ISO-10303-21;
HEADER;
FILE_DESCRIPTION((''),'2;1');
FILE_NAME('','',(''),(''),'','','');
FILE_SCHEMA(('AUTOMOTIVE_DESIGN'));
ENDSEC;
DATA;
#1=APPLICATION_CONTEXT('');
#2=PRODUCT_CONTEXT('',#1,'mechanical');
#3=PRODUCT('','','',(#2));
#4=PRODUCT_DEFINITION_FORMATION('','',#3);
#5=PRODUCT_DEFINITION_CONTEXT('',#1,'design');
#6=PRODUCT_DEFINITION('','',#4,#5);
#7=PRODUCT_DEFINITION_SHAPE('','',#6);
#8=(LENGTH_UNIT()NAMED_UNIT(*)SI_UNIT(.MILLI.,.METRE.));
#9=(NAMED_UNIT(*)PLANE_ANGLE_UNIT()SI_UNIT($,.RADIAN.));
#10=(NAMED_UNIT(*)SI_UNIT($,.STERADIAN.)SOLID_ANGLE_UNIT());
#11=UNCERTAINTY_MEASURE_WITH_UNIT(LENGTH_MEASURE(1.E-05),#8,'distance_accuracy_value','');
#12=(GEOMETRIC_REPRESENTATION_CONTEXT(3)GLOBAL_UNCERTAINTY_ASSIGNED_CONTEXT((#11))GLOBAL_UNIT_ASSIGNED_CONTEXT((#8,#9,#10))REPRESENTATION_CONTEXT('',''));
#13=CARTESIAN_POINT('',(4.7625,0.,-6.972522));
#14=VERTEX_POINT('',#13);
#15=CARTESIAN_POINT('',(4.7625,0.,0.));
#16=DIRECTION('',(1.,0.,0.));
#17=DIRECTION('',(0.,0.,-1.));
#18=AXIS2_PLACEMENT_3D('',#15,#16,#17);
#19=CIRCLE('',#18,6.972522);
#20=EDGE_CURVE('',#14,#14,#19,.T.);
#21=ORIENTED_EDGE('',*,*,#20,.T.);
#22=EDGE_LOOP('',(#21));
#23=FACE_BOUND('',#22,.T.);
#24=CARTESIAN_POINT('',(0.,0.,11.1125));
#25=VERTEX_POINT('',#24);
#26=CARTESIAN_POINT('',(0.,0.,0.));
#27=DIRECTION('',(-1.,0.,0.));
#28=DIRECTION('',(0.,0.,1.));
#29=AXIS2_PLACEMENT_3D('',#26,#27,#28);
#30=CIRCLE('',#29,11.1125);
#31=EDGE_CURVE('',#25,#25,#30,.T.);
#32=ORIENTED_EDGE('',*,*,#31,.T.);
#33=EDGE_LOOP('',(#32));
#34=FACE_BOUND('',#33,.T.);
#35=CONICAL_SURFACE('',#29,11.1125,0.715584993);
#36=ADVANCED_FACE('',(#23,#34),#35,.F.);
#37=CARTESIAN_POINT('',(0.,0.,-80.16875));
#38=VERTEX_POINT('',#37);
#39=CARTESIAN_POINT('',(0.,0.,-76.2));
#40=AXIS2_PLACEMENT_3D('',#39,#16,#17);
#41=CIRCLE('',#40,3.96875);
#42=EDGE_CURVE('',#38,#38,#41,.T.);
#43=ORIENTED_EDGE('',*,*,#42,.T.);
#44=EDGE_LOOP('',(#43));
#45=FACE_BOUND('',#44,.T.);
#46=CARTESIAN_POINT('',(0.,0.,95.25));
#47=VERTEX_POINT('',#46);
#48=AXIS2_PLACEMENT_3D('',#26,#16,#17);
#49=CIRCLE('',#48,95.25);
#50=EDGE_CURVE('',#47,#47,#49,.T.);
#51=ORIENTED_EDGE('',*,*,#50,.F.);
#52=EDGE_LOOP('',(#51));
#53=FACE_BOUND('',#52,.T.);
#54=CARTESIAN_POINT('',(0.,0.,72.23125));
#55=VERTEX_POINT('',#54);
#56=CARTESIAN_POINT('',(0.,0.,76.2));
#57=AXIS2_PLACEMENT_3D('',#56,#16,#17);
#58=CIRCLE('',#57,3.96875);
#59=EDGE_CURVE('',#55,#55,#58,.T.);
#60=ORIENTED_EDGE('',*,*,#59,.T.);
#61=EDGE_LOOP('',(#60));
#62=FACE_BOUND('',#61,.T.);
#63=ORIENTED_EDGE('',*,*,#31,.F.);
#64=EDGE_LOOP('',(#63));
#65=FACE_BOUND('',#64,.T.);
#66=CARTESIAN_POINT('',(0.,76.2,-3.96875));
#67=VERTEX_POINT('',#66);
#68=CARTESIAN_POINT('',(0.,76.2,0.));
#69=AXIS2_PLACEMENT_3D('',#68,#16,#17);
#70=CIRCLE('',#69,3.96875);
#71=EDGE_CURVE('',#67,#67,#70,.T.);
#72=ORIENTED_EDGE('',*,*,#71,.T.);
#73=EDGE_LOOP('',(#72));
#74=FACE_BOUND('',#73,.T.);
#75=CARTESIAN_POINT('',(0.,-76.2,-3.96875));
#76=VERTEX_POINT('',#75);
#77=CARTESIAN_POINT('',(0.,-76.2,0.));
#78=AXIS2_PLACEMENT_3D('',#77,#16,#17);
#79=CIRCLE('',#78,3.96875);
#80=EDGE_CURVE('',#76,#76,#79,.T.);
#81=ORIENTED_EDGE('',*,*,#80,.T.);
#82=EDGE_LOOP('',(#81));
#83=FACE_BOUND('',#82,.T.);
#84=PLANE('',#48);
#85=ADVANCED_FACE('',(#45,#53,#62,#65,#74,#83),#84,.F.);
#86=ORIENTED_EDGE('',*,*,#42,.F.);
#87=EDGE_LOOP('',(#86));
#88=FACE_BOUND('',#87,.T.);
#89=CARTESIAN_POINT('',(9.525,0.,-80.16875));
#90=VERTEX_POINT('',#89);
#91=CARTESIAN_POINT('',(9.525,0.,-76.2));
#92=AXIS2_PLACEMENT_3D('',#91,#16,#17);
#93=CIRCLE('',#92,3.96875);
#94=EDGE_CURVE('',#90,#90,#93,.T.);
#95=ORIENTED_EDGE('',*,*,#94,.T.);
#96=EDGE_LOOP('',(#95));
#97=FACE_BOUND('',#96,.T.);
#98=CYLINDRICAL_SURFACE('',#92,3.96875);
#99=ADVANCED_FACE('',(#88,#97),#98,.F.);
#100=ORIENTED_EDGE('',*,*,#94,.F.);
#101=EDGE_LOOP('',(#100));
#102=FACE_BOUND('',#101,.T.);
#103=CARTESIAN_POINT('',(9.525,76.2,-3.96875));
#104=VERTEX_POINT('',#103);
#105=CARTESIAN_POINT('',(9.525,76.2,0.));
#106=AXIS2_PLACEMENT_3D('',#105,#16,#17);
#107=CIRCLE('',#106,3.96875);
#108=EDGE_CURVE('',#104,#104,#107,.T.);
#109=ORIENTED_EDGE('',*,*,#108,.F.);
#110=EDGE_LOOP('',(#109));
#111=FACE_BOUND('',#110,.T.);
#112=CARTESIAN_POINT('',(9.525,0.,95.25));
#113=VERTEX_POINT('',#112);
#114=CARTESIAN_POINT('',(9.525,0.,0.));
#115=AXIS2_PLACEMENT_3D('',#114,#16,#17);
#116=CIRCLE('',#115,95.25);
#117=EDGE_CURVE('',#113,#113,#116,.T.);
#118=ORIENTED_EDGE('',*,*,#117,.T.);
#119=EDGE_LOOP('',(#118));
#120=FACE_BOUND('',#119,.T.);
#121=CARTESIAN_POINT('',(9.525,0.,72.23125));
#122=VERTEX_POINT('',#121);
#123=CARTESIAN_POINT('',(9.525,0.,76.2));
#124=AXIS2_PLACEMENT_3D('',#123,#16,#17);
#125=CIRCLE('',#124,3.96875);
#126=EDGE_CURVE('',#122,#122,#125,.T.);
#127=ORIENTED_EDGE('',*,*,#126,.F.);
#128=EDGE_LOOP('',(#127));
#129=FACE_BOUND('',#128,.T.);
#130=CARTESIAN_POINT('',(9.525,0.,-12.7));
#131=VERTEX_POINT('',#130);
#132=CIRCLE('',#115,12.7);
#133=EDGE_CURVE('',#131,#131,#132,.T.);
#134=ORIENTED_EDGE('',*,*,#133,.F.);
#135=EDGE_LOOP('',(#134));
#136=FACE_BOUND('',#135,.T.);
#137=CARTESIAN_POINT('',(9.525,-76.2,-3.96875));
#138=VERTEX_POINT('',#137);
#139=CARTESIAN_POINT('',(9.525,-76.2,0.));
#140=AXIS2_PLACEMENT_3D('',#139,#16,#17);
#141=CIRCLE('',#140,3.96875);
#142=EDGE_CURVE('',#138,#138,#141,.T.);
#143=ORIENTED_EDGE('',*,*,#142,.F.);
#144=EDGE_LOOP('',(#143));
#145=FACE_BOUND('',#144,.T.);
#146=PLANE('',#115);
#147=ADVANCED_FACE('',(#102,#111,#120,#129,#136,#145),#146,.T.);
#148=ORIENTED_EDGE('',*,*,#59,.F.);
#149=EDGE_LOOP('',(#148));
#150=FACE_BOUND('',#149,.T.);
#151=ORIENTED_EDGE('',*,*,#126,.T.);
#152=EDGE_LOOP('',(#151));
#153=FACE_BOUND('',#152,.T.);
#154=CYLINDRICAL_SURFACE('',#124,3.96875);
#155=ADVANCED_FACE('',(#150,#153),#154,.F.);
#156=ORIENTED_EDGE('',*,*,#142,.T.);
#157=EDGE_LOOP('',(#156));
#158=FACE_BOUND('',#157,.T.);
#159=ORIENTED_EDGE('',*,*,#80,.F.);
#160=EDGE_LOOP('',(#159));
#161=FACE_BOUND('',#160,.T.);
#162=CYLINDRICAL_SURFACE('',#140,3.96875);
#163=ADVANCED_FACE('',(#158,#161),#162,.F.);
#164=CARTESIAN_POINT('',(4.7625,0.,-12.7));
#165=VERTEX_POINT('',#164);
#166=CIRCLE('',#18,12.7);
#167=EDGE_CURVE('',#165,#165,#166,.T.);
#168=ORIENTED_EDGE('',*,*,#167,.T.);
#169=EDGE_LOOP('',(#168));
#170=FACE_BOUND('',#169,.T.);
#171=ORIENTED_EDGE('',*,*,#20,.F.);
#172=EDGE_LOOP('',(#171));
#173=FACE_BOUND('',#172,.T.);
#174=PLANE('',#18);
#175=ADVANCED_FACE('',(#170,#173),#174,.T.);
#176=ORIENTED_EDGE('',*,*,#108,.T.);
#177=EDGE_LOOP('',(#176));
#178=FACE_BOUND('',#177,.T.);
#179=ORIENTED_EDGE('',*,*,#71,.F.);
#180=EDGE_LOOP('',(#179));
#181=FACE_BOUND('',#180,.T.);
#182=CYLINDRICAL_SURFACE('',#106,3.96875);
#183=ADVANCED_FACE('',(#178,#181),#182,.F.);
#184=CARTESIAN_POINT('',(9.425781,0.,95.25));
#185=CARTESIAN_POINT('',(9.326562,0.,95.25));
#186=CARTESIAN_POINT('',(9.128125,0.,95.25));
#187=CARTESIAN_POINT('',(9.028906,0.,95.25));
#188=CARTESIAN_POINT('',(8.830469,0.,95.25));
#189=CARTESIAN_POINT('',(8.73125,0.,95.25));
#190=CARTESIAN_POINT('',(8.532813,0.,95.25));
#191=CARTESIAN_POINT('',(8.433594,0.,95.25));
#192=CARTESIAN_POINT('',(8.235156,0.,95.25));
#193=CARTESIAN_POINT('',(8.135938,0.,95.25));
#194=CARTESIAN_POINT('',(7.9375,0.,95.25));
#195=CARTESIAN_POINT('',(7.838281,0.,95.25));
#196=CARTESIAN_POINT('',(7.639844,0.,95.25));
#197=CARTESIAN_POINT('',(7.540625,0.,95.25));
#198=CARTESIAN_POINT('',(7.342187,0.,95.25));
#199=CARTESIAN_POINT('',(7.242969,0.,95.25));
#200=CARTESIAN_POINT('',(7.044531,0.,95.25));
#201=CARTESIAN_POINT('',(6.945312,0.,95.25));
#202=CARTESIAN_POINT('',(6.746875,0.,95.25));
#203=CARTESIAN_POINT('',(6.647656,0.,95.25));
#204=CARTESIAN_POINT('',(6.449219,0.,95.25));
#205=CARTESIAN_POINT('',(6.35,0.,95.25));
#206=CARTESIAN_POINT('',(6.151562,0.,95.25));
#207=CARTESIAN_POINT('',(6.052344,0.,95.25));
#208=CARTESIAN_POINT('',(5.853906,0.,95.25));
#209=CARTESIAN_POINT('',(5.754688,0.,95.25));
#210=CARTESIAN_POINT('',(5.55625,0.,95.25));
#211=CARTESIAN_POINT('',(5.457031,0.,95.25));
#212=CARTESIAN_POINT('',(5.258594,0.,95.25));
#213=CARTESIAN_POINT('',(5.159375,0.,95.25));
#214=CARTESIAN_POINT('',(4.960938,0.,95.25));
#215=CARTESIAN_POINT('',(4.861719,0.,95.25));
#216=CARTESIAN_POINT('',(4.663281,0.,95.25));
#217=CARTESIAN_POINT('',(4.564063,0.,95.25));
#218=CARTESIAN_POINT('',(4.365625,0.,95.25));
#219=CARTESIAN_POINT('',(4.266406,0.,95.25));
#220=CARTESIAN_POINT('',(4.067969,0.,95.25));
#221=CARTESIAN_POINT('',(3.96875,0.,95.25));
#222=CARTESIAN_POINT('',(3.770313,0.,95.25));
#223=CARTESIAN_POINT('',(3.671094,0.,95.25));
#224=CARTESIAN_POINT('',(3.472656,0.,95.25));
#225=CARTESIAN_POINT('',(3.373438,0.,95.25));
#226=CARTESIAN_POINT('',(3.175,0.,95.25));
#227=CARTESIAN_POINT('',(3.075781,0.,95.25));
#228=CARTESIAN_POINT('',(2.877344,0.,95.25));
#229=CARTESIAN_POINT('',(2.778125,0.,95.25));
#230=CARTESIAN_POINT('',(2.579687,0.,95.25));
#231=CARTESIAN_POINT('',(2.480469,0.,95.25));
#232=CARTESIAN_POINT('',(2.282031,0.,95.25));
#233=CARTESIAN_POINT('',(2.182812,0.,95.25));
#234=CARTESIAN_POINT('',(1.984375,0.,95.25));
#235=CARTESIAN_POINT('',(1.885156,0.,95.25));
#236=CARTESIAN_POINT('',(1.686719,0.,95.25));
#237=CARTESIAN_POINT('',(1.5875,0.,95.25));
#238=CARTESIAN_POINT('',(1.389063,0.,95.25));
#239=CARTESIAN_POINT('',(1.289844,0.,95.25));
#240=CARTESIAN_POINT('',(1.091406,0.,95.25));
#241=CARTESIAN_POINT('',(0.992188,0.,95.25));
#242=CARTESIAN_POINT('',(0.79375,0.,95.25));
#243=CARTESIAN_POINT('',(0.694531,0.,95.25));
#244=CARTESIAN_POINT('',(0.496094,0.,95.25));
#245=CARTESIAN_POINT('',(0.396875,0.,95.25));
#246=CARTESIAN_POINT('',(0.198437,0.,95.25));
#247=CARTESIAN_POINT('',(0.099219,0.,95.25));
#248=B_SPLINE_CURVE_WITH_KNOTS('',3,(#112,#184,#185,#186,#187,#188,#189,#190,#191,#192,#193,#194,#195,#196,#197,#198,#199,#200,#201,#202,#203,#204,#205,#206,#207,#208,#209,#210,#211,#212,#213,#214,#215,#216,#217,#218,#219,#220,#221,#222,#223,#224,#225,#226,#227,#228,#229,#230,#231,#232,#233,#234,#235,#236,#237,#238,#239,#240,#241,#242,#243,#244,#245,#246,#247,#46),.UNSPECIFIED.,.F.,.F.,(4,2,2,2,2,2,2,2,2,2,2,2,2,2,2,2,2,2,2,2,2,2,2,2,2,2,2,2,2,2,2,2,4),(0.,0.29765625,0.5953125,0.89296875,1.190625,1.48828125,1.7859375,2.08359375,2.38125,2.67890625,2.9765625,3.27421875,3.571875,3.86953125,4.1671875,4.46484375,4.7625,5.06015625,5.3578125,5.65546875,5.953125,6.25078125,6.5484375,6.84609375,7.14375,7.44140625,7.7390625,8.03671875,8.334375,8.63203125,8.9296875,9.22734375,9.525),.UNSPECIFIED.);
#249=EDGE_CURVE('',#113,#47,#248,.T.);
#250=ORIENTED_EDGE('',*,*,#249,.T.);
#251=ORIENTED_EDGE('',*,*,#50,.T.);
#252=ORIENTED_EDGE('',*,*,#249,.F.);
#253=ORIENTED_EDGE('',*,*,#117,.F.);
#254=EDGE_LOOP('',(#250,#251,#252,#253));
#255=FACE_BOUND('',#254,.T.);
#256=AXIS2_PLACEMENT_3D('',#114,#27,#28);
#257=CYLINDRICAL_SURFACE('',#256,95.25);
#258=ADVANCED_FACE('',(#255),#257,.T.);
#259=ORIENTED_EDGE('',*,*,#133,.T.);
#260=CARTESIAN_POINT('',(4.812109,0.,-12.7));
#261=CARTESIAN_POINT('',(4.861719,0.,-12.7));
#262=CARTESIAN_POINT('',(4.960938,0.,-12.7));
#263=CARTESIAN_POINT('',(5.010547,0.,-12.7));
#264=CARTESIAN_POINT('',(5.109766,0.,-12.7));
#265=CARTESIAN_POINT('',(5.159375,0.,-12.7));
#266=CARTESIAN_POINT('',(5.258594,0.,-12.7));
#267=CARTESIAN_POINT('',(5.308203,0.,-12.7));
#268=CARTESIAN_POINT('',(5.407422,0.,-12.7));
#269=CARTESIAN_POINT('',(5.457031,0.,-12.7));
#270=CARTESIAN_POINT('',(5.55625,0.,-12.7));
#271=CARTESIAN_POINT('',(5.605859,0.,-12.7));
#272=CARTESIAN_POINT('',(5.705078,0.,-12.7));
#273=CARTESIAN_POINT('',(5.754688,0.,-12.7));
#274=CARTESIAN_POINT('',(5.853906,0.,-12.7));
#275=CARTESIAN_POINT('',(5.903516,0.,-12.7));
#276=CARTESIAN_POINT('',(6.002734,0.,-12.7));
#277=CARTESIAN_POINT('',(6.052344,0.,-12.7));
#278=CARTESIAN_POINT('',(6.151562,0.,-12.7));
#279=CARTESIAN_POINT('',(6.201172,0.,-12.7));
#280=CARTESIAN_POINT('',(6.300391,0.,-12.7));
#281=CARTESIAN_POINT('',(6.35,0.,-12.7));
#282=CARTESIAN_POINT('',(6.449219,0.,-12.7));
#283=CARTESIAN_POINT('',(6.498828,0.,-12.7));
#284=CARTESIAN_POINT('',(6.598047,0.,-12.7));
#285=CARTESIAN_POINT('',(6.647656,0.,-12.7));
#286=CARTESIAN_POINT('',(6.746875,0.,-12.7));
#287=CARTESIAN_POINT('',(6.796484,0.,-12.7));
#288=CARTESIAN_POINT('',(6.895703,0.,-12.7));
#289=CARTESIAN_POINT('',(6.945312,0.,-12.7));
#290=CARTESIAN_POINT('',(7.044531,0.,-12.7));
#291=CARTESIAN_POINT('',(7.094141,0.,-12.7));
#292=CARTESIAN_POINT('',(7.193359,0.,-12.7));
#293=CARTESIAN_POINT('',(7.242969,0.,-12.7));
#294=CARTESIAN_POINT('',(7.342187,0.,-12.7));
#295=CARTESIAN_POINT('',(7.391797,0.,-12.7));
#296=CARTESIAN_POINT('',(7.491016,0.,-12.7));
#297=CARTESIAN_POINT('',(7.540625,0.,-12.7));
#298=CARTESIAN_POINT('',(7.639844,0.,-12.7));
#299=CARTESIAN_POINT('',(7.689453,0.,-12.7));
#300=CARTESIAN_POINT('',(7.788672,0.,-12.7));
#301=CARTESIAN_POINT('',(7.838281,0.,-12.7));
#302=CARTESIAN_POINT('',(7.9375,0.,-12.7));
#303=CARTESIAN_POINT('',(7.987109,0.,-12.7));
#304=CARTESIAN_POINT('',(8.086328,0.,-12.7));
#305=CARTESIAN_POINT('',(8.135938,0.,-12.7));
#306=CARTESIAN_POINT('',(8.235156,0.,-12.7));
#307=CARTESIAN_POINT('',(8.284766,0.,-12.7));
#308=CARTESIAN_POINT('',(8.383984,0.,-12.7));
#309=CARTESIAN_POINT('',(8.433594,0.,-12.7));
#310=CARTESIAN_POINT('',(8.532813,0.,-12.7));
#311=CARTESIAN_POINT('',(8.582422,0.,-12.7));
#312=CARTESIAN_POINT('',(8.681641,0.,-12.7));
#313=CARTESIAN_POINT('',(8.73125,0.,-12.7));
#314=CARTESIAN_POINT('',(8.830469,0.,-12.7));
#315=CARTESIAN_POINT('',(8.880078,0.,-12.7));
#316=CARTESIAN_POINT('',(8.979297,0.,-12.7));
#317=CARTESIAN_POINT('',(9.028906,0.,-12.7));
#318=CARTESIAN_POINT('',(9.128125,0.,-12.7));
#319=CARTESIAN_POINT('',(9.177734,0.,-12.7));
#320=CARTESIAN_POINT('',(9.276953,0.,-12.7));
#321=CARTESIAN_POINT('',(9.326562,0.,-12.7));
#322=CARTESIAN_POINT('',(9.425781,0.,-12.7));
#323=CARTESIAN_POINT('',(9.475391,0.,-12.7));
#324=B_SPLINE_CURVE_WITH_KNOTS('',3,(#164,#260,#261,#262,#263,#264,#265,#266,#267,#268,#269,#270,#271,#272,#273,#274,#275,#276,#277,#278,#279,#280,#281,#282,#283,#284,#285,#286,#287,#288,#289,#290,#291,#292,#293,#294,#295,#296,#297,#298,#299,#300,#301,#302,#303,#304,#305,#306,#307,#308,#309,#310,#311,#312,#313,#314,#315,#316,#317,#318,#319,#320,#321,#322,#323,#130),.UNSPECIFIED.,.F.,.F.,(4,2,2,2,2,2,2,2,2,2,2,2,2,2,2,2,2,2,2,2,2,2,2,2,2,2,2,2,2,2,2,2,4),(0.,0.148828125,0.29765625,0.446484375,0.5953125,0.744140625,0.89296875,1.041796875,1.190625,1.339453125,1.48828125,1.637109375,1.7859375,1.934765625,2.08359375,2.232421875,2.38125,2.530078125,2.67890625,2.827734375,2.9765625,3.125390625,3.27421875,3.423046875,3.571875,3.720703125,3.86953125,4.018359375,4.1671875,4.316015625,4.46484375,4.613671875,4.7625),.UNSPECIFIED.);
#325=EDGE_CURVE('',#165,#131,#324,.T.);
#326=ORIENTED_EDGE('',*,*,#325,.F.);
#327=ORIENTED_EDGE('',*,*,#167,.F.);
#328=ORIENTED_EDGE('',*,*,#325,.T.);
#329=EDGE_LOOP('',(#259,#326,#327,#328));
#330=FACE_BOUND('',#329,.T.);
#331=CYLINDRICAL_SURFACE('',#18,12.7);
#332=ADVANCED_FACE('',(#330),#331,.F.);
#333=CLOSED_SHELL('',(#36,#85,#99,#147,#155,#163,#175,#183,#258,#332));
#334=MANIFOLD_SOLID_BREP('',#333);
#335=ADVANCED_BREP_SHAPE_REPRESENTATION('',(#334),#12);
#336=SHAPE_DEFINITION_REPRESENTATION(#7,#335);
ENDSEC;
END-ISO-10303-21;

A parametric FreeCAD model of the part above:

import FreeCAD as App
import Part
import Sketcher
from FreeCAD import Vector
Q = App.Units.Quantity

doc = App.newDocument("Part")
body = doc.addObject("PartDesign::Body", "Body")

sketch1 = body.newObject("Sketcher::SketchObject", "Sketch")
sketch1.AttachmentSupport = (doc.getObject("YZ_Plane"), [""])
sketch1.MapMode = "FlatFace"
sketch1.addGeometry(Part.Circle(Vector(0, 0, 0), Vector(0, 0, 1), 95), False)
sketch1.addConstraint(Sketcher.Constraint("Coincident", 0, 3, -1, 1))
sketch1.addConstraint(Sketcher.Constraint("Diameter", 0, Q("7.5 in")))
pad1 = body.newObject("PartDesign::Pad", "Pad")
pad1.Profile = sketch1
pad1.Length = Q("0.375 in")

sketch2 = body.newObject("Sketcher::SketchObject", "Sketch001")
sketch2.AttachmentSupport = (doc.getObject("YZ_Plane"), [""])
sketch2.MapMode = "FlatFace"
sketch2.AttachmentOffset = App.Placement(Vector(0, 0, 0.375 * 25.4), App.Rotation())
sketch2.addGeometry(Part.Circle(Vector(0, 0, 0), Vector(0, 0, 1), 13), False)
sketch2.addConstraint(Sketcher.Constraint("Coincident", 0, 3, -1, 1))
sketch2.addConstraint(Sketcher.Constraint("Diameter", 0, Q("1 in")))
pocket1 = body.newObject("PartDesign::Pocket", "Pocket")
pocket1.Profile = sketch2
pocket1.Length = Q("0.1875 in")

sketch3 = body.newObject("Sketcher::SketchObject", "Sketch002")
sketch3.AttachmentSupport = (doc.getObject("XZ_Plane"), [""])
sketch3.MapMode = "FlatFace"
sketch3.addGeometry(Part.LineSegment(Vector(9.5, 0, 0), Vector(0, 0, 0)), False)
sketch3.addGeometry(Part.LineSegment(Vector(0, 0, 0), Vector(0, 11.1, 0)), False)
sketch3.addGeometry(Part.LineSegment(Vector(0, 11.1, 0), Vector(5, 6.7, 0)), False)
sketch3.addGeometry(Part.LineSegment(Vector(5, 6.7, 0), Vector(9.5, 6.7, 0)), False)
sketch3.addGeometry(Part.LineSegment(Vector(9.5, 6.7, 0), Vector(9.5, 0, 0)), False)
sketch3.addConstraint(Sketcher.Constraint("Coincident", 0, 2, 1, 1))
sketch3.addConstraint(Sketcher.Constraint("Coincident", 1, 2, 2, 1))
sketch3.addConstraint(Sketcher.Constraint("Coincident", 2, 2, 3, 1))
sketch3.addConstraint(Sketcher.Constraint("Coincident", 3, 2, 4, 1))
sketch3.addConstraint(Sketcher.Constraint("Coincident", 4, 2, 0, 1))
sketch3.addConstraint(Sketcher.Constraint("Horizontal", 0))
sketch3.addConstraint(Sketcher.Constraint("Vertical", 1))
sketch3.addConstraint(Sketcher.Constraint("Horizontal", 3))
sketch3.addConstraint(Sketcher.Constraint("Vertical", 4))
sketch3.addConstraint(Sketcher.Constraint("Coincident", 0, 2, -1, 1))
sketch3.addConstraint(Sketcher.Constraint("Angle", 2, Q("-41 deg")))
sketch3.addConstraint(Sketcher.Constraint("DistanceX", 0, 2, 0, 1, Q("0.375 in")))
sketch3.addConstraint(Sketcher.Constraint("DistanceY", 1, 1, 1, 2, Q("0.4375 in")))
sketch3.addConstraint(Sketcher.Constraint("DistanceY", 4, 2, 4, 1, Q("0.2656 in")))
groove = body.newObject("PartDesign::Groove", "Groove")
groove.Profile = sketch3
groove.ReferenceAxis = (sketch3, ["H_Axis"])
groove.Angle = 360

sketch4 = body.newObject("Sketcher::SketchObject", "Sketch003")
sketch4.AttachmentSupport = (doc.getObject("YZ_Plane"), [""])
sketch4.MapMode = "FlatFace"
sketch4.AttachmentOffset = App.Placement(Vector(0, 0, 0.375 * 25.4), App.Rotation())
sketch4.addGeometry(Part.Circle(Vector(-76.2, 0, 0), Vector(0, 0, 1), 4), False)
sketch4.addConstraint(Sketcher.Constraint("PointOnObject", 0, 3, -1))
sketch4.addConstraint(Sketcher.Constraint("Diameter", 0, Q("0.3125 in")))
sketch4.addConstraint(Sketcher.Constraint("DistanceX", 0, 3, -1, 1, Q("3 in")))
doc.recompute()
hole = body.newObject("PartDesign::Hole", "Hole")
hole.Profile = sketch4
hole.ThreadType = "None"
hole.Diameter = Q("0.3125 in")
hole.DepthType = "ThroughAll"
doc.recompute()

polarpattern = body.newObject("PartDesign::PolarPattern", "PolarPattern")
polarpattern.Originals = [hole]
polarpattern.Axis = (doc.getObject("X_Axis"), [""])
polarpattern.Angle = 360
polarpattern.Occurrences = 4
body.Tip = polarpattern

doc.recompute()
